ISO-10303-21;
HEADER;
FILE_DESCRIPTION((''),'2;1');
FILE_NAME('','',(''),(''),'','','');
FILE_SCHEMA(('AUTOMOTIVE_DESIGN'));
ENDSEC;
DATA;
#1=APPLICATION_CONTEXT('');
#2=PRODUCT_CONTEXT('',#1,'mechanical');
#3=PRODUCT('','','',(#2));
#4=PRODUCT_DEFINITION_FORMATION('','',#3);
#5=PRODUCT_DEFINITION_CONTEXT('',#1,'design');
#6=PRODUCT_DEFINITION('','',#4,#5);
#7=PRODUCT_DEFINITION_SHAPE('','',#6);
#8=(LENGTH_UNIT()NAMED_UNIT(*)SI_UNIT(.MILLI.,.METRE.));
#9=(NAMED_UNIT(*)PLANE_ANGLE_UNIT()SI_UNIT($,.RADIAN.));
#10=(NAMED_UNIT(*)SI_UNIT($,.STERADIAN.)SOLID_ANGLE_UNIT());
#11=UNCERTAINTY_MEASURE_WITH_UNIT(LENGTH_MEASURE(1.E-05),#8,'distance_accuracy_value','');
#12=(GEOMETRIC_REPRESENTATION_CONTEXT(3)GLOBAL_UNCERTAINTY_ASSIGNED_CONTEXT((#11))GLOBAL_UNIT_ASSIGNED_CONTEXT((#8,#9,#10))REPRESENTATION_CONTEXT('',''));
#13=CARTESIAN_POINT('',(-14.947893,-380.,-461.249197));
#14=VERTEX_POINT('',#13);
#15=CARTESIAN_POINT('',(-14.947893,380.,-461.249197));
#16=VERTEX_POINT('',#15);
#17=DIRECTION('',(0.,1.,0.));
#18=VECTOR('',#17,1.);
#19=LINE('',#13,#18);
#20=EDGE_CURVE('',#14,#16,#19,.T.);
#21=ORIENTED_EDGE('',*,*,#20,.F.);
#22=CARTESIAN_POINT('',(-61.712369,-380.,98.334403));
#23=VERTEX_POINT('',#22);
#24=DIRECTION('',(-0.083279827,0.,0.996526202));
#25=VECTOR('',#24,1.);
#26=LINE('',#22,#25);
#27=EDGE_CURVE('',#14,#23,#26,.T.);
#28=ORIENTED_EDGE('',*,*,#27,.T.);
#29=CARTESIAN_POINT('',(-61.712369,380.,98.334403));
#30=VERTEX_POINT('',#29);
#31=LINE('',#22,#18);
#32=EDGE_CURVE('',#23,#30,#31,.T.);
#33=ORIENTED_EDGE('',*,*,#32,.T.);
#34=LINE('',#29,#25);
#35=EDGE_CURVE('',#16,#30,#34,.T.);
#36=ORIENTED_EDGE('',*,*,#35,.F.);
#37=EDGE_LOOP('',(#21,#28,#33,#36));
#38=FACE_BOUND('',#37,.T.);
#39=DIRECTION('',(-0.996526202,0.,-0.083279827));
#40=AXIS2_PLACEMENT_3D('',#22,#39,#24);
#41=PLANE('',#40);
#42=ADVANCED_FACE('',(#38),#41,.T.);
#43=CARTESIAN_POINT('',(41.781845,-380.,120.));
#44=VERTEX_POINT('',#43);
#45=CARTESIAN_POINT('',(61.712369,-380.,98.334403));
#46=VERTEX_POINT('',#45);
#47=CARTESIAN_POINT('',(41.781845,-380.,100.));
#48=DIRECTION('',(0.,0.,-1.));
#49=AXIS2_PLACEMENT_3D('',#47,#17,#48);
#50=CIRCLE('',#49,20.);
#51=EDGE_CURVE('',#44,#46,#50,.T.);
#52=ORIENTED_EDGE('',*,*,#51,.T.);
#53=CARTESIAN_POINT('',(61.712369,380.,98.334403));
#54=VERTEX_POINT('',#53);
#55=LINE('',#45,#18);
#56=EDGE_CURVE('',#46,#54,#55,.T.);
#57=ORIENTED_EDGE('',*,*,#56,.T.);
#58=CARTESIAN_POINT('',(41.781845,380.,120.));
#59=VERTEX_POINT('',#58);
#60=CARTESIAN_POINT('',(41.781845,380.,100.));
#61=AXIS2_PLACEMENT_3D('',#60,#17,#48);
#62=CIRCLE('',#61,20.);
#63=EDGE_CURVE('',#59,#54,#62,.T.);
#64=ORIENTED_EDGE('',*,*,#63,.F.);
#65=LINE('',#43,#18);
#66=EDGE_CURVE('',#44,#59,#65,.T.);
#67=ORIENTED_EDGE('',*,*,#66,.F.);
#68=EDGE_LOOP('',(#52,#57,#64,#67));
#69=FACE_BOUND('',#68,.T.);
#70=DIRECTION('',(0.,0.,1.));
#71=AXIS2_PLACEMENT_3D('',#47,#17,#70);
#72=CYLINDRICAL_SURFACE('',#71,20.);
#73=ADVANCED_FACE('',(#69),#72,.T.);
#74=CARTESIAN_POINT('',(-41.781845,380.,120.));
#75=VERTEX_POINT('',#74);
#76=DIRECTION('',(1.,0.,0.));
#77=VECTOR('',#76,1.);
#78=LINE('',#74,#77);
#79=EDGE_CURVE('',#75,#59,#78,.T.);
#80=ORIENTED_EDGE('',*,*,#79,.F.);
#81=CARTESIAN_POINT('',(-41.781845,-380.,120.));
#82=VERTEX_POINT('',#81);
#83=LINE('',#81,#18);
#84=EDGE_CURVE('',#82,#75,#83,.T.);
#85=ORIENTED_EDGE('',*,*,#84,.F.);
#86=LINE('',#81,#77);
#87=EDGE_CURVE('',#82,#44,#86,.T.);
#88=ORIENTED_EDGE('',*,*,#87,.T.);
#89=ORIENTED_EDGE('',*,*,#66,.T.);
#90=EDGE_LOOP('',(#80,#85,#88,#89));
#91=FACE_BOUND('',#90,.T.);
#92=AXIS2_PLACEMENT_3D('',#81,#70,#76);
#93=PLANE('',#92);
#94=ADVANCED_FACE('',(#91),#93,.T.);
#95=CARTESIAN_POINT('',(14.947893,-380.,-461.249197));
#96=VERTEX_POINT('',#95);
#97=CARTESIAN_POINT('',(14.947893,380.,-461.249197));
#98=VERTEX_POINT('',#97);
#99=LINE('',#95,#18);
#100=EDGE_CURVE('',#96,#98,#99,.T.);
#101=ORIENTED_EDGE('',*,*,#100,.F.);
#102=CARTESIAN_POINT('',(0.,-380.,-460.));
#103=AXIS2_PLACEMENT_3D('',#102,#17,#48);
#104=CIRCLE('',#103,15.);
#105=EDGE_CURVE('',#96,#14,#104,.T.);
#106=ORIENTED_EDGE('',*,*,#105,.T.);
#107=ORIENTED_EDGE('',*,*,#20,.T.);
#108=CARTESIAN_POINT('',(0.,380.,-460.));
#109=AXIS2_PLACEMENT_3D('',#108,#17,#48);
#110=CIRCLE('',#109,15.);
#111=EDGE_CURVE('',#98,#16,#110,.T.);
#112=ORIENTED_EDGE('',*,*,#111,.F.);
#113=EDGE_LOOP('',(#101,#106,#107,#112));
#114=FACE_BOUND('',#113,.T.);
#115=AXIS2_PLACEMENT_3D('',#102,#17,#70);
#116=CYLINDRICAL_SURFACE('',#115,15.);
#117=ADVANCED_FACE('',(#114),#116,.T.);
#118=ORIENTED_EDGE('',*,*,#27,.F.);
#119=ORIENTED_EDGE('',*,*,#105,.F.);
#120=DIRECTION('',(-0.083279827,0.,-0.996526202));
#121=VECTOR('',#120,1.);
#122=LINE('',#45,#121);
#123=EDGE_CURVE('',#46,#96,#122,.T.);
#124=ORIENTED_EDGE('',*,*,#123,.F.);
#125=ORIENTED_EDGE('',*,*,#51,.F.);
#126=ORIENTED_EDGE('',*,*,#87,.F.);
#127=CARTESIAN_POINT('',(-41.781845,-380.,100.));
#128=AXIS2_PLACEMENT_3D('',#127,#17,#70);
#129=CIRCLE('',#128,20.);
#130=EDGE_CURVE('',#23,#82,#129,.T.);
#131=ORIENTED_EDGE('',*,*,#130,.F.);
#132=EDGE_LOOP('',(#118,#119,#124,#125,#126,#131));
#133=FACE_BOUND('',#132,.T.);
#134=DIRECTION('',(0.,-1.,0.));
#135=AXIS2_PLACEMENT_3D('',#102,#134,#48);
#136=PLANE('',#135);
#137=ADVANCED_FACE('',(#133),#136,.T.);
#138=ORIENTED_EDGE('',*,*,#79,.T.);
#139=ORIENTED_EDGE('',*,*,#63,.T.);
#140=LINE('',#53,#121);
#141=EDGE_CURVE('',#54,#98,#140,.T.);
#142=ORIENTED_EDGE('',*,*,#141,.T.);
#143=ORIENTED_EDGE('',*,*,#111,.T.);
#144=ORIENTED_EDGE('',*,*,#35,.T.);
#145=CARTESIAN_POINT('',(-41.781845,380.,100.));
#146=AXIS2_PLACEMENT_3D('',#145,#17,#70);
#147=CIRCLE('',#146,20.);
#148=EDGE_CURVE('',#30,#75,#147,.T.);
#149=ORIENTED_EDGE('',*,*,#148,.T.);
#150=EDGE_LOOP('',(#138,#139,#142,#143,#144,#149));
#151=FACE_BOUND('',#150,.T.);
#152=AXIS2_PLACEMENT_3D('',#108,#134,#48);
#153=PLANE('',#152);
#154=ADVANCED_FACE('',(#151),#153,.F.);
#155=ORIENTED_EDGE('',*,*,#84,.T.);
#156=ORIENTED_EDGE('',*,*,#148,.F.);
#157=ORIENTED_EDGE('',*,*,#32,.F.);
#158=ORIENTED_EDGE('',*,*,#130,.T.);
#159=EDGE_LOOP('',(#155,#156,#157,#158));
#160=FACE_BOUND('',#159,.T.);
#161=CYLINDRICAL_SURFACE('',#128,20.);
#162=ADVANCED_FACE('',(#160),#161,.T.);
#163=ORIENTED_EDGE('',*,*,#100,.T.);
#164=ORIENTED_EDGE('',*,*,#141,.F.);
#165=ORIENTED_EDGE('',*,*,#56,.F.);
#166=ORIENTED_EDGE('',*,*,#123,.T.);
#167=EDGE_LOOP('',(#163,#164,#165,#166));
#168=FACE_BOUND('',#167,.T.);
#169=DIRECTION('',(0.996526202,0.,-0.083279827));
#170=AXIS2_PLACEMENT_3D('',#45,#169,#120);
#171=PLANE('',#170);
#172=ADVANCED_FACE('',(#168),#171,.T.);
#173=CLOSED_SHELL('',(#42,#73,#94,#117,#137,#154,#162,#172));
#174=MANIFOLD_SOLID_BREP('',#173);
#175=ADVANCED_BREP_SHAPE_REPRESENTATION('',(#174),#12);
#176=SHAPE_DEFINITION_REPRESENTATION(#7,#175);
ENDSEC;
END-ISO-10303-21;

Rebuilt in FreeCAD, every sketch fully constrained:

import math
import FreeCAD as App
import Part
import Sketcher
Q = App.Units.Quantity

doc = App.newDocument("Part")
body = doc.addObject("PartDesign::Body", "Body")

sketch1 = doc.addObject("Sketcher::SketchObject", "Sketch")
body.addObject(sketch1)
sketch1.AttachmentSupport = (doc.XZ_Plane, [""])
sketch1.MapMode = "FlatFace"
sketch1.addGeometry([
    Part.LineSegment(App.Vector(-14.947893, -461.249197, 0), App.Vector(-61.712369, 98.334403, 0)),
    Part.ArcOfCircle(Part.Circle(App.Vector(-41.781845, 100, 0), App.Vector(0, 0, 1), 20), math.radians(90), math.radians(184.777115)),
    Part.LineSegment(App.Vector(-41.781845, 120, 0), App.Vector(41.781845, 120, 0)),
    Part.ArcOfCircle(Part.Circle(App.Vector(41.781845, 100, 0), App.Vector(0, 0, 1), 20), math.radians(-4.777115), math.radians(90)),
    Part.LineSegment(App.Vector(61.712369, 98.334403, 0), App.Vector(14.947893, -461.249197, 0)),
    Part.ArcOfCircle(Part.Circle(App.Vector(0, -460, 0), App.Vector(0, 0, 1), 15), math.radians(-175.222885), math.radians(-4.777115)),
], False)
sketch1.addConstraint([
    Sketcher.Constraint("Tangent", 0, 2, 1, 2),
    Sketcher.Constraint("Tangent", 1, 1, 2, 1),
    Sketcher.Constraint("Tangent", 2, 2, 3, 2),
    Sketcher.Constraint("Tangent", 3, 1, 4, 1),
    Sketcher.Constraint("Tangent", 4, 2, 5, 2),
    Sketcher.Constraint("Tangent", 5, 1, 0, 1),
    Sketcher.Constraint("Horizontal", 2),
    Sketcher.Constraint("Equal", 1, 3),
    Sketcher.Constraint("Symmetric", 0, 2, 3, 1, -2),
    Sketcher.Constraint("Radius", 1, Q("20 mm")),
    Sketcher.Constraint("Radius", 5, Q("15 mm")),
    Sketcher.Constraint("DistanceY", -1, 1, 1, 3, Q("100 mm")),
    Sketcher.Constraint("DistanceY", 5, 3, -1, 1, Q("460 mm")),
    Sketcher.Constraint("DistanceX", 2, 1, 2, 2, Q("83.563689 mm")),
])
pad1 = doc.addObject("PartDesign::Pad", "Pad")
body.addObject(pad1)
pad1.Profile = sketch1
pad1.Type = "TwoLengths"
pad1.Length = 380
pad1.Length2 = 380
pad1.Reversed = True

doc.recompute()
